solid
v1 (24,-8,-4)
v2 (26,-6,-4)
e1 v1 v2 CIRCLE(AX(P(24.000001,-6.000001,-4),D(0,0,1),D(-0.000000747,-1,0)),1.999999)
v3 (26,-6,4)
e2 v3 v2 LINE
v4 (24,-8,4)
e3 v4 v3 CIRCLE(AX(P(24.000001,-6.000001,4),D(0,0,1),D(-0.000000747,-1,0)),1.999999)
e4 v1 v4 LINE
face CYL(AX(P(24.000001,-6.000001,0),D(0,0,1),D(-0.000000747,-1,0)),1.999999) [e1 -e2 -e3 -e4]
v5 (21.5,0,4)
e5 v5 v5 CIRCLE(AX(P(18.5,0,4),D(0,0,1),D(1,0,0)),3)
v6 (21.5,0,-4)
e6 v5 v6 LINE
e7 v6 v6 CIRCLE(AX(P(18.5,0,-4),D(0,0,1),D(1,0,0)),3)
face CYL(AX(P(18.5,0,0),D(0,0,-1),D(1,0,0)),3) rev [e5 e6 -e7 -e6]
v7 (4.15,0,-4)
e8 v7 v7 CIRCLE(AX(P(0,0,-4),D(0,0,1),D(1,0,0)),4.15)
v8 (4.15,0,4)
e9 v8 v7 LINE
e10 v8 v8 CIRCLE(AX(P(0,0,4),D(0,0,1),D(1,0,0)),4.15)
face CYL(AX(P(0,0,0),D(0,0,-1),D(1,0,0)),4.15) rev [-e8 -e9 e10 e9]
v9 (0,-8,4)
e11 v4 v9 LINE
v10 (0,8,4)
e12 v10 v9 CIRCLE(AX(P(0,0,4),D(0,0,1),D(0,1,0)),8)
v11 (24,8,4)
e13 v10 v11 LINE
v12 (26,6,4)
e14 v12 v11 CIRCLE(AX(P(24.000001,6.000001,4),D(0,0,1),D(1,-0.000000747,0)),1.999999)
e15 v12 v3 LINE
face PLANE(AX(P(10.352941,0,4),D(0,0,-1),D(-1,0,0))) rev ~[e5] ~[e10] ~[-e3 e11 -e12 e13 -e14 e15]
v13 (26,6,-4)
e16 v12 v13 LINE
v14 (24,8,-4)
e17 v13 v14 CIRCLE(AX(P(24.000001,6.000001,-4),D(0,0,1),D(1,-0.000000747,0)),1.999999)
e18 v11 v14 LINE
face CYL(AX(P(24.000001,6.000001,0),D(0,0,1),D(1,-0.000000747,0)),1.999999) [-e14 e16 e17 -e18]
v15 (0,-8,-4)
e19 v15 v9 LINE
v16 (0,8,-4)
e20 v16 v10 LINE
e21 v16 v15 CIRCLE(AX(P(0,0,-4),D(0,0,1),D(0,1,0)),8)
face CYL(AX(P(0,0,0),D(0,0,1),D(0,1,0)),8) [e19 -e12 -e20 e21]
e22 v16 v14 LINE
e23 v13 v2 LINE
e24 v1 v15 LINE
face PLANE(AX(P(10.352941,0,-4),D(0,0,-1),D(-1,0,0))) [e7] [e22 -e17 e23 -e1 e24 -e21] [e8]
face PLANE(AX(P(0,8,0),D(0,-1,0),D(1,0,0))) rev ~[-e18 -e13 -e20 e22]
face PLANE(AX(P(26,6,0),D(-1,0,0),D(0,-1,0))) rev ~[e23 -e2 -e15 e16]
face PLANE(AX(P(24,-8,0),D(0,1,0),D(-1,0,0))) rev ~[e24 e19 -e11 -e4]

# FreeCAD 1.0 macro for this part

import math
import FreeCAD as App
import Part
import Sketcher

doc = App.newDocument("Part")
params = doc.addObject("Spreadsheet::Sheet", "Params")
for row, (alias, value) in enumerate([
    ("sketch1_diameter", "6 mm"),
    ("sketch1_radius", "8 mm"),
    ("sketch1_radius2", "1.999999 mm"),
    ("sketch1_diameter2", "8.3 mm"),
    ("sketch1_width", "24 mm"),
    ("pad1_length", "8 mm"),
], start=1):
    params.set(f"A{row}", alias)
    params.set(f"B{row}", "=" + value)
    params.setAlias(f"B{row}", alias)

body = doc.addObject("PartDesign::Body", "Body")

sketch1 = doc.addObject("Sketcher::SketchObject", "Sketch")
body.addObject(sketch1)
sketch1.AttachmentSupport = (doc.XY_Plane, [""])
sketch1.MapMode = "FlatFace"
sketch1.addGeometry([
    Part.LineSegment(App.Vector(24, 8, 0), App.Vector(0, 8, 0)),
    Part.ArcOfCircle(Part.Circle(App.Vector(0, 0, 0), App.Vector(0, 0, 1), 8), math.radians(90), math.radians(270)),
    Part.LineSegment(App.Vector(0, -8, 0), App.Vector(24, -8, 0)),
    Part.ArcOfCircle(Part.Circle(App.Vector(24.000001, -6.000001, 0), App.Vector(0, 0, 1), 1.999999), math.radians(-90.000043), math.radians(0.000043)),
    Part.LineSegment(App.Vector(26, -6, 0), App.Vector(26, 6, 0)),
    Part.ArcOfCircle(Part.Circle(App.Vector(24.000001, 6.000001, 0), App.Vector(0, 0, 1), 1.999999), math.radians(-0.000043), math.radians(90.000043)),
    Part.Circle(App.Vector(18.5, 0, 0), App.Vector(0, 0, 1), 3),
    Part.Circle(App.Vector(0, 0, 0), App.Vector(0, 0, 1), 4.15),
], False)
sketch1.addConstraint([
    Sketcher.Constraint("Tangent", 0, 2, 1, 1),
    Sketcher.Constraint("Tangent", 1, 2, 2, 1),
    Sketcher.Constraint("Tangent", 2, 2, 3, 1),
    Sketcher.Constraint("Tangent", 3, 2, 4, 1),
    Sketcher.Constraint("Tangent", 4, 2, 5, 1),
    Sketcher.Constraint("Tangent", 5, 2, 0, 1),
    Sketcher.Constraint("Horizontal", 0),
    Sketcher.Constraint("Horizontal", 2),
    Sketcher.Constraint("Vertical", 4),
    Sketcher.Constraint("Coincident", 1, 3, -1, 1),
    Sketcher.Constraint("Coincident", 7, 3, -1, 1),
    Sketcher.Constraint("Equal", 3, 5),
    Sketcher.Constraint("PointOnObject", 6, 3, -1),
    Sketcher.Constraint("Diameter", 6, 6.0),
    Sketcher.Constraint("Radius", 1, 8.0),
    Sketcher.Constraint("Radius", 3, 1.999999),
    Sketcher.Constraint("Diameter", 7, 8.3),
    Sketcher.Constraint("DistanceX", 0, 2, 0, 1, 24.0),
    Sketcher.Constraint("DistanceX", -1, 1, 6, 3, 18.5),
])
sketch1.setExpression("Constraints[13]", "Params.sketch1_diameter")
sketch1.setExpression("Constraints[14]", "Params.sketch1_radius")
sketch1.setExpression("Constraints[15]", "Params.sketch1_radius2")
sketch1.setExpression("Constraints[16]", "Params.sketch1_diameter2")
sketch1.setExpression("Constraints[17]", "Params.sketch1_width")
pad1 = doc.addObject("PartDesign::Pad", "Pad")
body.addObject(pad1)
pad1.Profile = sketch1
pad1.setExpression("Length", "Params.pad1_length")
pad1.Midplane = True

doc.recompute()
